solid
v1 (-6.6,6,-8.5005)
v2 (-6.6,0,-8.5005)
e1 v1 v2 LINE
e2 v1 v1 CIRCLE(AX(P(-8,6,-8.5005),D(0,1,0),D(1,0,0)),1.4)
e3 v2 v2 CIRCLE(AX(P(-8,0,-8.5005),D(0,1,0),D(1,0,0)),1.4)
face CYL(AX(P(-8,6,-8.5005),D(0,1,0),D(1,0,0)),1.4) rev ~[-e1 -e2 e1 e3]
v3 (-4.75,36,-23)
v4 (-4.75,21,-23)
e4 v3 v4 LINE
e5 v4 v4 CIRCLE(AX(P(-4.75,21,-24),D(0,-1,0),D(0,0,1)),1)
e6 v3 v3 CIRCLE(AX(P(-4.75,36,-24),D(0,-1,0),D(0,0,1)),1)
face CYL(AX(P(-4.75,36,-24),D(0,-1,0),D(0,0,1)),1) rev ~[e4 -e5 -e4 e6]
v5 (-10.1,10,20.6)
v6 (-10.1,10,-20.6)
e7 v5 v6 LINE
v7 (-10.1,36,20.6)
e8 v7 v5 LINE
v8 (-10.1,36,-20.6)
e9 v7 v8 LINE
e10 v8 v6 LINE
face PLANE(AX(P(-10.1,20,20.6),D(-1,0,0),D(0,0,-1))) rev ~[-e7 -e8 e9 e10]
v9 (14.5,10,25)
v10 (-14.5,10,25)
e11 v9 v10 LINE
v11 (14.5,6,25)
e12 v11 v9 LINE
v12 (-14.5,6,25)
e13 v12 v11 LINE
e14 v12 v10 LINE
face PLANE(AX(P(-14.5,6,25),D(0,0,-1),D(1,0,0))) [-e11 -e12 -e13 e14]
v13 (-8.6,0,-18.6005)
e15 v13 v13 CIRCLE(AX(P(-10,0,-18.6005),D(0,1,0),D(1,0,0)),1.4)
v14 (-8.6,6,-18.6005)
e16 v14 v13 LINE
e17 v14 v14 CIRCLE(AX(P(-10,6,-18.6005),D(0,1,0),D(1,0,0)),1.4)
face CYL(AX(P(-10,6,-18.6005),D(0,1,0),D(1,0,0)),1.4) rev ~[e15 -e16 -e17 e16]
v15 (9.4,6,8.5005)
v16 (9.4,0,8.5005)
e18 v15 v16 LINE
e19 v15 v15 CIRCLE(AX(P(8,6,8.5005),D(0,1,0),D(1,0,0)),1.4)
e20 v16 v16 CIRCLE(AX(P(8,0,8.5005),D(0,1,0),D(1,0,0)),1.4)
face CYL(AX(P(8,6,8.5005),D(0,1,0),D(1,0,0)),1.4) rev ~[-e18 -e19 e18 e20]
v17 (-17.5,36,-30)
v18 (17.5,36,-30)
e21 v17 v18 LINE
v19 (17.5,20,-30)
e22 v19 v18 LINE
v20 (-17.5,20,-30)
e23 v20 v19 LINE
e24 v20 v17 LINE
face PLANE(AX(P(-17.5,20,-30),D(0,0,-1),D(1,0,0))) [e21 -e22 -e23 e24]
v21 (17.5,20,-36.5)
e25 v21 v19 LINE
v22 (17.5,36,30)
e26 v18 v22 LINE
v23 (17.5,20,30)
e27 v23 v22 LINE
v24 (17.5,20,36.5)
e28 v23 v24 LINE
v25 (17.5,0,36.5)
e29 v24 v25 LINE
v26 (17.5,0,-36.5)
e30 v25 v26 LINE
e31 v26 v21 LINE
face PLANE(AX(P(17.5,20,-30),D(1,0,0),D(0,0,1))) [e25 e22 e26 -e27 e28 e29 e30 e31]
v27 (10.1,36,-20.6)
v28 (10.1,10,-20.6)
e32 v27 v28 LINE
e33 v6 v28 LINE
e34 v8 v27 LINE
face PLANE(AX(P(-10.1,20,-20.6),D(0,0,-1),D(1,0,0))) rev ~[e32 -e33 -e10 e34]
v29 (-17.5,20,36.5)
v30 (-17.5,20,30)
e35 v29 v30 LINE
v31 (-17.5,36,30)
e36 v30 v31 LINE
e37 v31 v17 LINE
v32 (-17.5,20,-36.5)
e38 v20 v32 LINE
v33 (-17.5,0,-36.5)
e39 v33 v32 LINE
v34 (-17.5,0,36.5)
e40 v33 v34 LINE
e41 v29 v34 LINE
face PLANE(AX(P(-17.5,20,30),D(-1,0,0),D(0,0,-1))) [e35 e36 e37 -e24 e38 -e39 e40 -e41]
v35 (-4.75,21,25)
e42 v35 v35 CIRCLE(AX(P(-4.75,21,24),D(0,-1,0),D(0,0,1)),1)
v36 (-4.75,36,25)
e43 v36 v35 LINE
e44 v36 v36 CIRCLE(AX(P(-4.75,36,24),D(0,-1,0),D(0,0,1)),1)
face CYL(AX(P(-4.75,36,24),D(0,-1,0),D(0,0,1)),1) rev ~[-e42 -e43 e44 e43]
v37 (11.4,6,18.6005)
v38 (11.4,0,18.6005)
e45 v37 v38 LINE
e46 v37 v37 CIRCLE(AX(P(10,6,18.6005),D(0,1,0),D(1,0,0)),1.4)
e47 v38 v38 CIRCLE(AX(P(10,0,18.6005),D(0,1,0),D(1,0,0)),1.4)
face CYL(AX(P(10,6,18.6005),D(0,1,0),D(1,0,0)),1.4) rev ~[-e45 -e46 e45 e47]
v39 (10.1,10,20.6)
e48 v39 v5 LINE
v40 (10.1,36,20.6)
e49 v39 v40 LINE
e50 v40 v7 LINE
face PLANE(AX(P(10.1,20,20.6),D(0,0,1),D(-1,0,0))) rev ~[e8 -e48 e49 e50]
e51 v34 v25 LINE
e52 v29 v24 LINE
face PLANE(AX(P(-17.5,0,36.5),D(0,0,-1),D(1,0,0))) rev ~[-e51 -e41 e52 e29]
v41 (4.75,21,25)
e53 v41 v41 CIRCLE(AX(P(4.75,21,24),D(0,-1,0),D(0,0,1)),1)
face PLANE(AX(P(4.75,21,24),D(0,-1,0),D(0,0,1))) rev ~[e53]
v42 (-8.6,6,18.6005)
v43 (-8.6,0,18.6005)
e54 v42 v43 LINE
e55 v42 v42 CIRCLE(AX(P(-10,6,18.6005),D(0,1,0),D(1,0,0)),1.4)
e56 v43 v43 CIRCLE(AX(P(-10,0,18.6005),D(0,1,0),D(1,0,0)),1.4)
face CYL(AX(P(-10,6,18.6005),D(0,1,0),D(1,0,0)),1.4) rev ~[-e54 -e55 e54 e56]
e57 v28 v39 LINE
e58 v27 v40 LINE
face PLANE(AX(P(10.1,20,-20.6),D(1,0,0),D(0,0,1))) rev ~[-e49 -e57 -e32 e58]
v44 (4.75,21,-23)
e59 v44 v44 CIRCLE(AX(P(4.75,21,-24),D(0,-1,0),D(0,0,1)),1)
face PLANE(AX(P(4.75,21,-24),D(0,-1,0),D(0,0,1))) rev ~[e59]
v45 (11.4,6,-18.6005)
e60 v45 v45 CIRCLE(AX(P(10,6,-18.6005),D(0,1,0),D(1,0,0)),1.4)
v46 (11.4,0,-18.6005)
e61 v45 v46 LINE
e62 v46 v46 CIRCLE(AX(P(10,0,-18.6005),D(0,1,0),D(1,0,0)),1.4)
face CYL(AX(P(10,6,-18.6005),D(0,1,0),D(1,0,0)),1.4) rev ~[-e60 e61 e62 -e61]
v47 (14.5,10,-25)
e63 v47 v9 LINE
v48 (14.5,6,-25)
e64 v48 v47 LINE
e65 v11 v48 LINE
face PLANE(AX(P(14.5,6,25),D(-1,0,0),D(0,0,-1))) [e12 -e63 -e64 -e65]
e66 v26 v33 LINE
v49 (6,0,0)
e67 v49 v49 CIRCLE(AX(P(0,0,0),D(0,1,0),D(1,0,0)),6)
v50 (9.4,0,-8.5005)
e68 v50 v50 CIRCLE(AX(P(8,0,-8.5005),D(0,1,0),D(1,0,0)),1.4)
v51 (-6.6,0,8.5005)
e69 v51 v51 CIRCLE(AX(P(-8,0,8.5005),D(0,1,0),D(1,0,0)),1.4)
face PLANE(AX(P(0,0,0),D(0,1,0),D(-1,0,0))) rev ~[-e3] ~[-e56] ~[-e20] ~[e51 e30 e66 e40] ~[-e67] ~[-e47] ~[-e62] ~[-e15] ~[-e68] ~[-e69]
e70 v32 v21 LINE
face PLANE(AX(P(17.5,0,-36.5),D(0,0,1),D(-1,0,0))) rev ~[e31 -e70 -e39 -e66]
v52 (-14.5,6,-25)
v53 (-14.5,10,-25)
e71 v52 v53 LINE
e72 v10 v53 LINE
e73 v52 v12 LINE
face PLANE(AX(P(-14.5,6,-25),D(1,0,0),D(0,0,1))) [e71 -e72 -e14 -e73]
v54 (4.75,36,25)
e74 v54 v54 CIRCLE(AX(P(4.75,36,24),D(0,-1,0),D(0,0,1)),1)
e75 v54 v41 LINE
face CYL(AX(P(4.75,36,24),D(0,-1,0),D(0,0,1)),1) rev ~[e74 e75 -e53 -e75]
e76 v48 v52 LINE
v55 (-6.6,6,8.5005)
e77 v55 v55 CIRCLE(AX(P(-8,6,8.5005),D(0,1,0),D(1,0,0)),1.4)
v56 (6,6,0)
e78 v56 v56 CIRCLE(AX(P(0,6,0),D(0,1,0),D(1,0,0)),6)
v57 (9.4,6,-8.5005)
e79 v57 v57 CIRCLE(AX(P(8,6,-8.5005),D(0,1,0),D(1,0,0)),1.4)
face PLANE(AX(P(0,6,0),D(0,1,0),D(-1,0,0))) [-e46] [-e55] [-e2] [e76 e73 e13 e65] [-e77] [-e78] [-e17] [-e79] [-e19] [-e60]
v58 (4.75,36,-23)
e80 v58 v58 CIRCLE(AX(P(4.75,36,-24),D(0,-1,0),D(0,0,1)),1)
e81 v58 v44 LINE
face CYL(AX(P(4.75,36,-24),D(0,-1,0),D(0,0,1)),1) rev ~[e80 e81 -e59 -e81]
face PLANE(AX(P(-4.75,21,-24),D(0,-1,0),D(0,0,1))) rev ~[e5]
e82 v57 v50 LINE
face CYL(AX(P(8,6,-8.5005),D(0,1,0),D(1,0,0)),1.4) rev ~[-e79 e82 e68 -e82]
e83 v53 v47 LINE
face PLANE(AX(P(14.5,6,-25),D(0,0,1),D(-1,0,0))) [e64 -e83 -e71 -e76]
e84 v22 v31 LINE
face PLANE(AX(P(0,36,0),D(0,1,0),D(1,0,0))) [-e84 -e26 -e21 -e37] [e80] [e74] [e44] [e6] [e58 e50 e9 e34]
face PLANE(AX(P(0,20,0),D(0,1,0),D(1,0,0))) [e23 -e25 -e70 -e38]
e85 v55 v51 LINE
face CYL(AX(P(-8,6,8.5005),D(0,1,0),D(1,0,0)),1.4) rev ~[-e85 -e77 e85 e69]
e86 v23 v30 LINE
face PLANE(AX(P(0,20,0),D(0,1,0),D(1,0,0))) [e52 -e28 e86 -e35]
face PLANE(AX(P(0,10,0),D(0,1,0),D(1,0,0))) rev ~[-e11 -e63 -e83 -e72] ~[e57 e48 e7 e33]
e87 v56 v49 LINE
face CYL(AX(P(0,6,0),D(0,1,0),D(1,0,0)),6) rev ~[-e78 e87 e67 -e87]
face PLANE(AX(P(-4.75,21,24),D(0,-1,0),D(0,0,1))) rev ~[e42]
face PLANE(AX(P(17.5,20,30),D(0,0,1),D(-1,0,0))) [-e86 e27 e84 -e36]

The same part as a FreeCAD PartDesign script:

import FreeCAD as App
import Part
import Sketcher


def add_polygon(sketch, points):
    """Adds a closed chain of lines whose ends are joined by coincident constraints."""
    first, n = sketch.GeometryCount, len(points)
    for a, b in zip(points, points[1:] + points[:1]):
        sketch.addGeometry(Part.LineSegment(App.Vector(*a, 0), App.Vector(*b, 0)), False)
    for i in range(n):
        sketch.addConstraint(Sketcher.Constraint("Coincident", first + i, 2, first + (i + 1) % n, 1))

doc = App.newDocument("Part")
params = doc.addObject("Spreadsheet::Sheet", "Params")
for row, (alias, value) in enumerate([
    ("sketch1_width", "35 mm"),
    ("sketch1_height", "73 mm"),
    ("pad1_length", "6 mm"),
    ("sketch2_width", "29 mm"),
    ("sketch2_height", "50 mm"),
    ("sketch2_width2", "35 mm"),
    ("sketch2_height2", "73 mm"),
    ("pad2_length", "14 mm"),
    ("sketch3_diameter", "12 mm"),
    ("sketch3_diameter2", "2.8 mm"),
    ("sketch4_width", "20.2 mm"),
    ("sketch4_height", "41.2 mm"),
    ("sketch4_width2", "29 mm"),
    ("sketch4_height2", "50 mm"),
    ("pad3_length", "16 mm"),
    ("pad3_length2", "10 mm"),
    ("sketch5_width", "35 mm"),
    ("sketch5_height", "60 mm"),
    ("sketch5_width2", "29 mm"),
    ("sketch5_height2", "50 mm"),
    ("pad4_length", "16 mm"),
    ("sketch6_diameter", "2 mm"),
    ("hole_diameter", "2 mm"),
    ("hole_depth", "15 mm"),
], start=1):
    params.set(f"A{row}", alias)
    params.set(f"B{row}", "=" + value)
    params.setAlias(f"B{row}", alias)

body = doc.addObject("PartDesign::Body", "Body")

sketch1 = body.newObject("Sketcher::SketchObject", "Sketch")
sketch1.AttachmentSupport = (doc.getObject("XZ_Plane"), [""])
sketch1.MapMode = "FlatFace"
add_polygon(sketch1, [(17.5, 36.5), (17.5, -36.5), (-17.5, -36.5), (-17.5, 36.5)])
sketch1.addConstraint([
    Sketcher.Constraint("Vertical", 0),
    Sketcher.Constraint("Horizontal", 1),
    Sketcher.Constraint("Vertical", 2),
    Sketcher.Constraint("Horizontal", 3),
    Sketcher.Constraint("Symmetric", 0, 2, 2, 2, -1, 1),
    Sketcher.Constraint("DistanceX", 1, 2, 1, 1, 35.0),
    Sketcher.Constraint("DistanceY", 0, 2, 0, 1, 73.0),
])
sketch1.setExpression("Constraints[9]", "Params.sketch1_width")
sketch1.setExpression("Constraints[10]", "Params.sketch1_height")
pad1 = body.newObject("PartDesign::Pad", "Pad")
pad1.Profile = sketch1
pad1.setExpression("Length", "Params.pad1_length")
pad1.Reversed = True

sketch2 = body.newObject("Sketcher::SketchObject", "Sketch001")
sketch2.AttachmentSupport = (doc.getObject("XZ_Plane"), [""])
sketch2.MapMode = "FlatFace"
sketch2.AttachmentOffset = App.Placement(App.Vector(0, 0, -6), App.Rotation())
add_polygon(sketch2, [(17.5, -36.5), (-17.5, -36.5), (-17.5, 36.5), (17.5, 36.5)])
add_polygon(sketch2, [(14.5, -25), (14.5, 25), (-14.5, 25), (-14.5, -25)])
sketch2.addConstraint([
    Sketcher.Constraint("Horizontal", 0),
    Sketcher.Constraint("Vertical", 1),
    Sketcher.Constraint("Horizontal", 2),
    Sketcher.Constraint("Vertical", 3),
    Sketcher.Constraint("Vertical", 4),
    Sketcher.Constraint("Horizontal", 5),
    Sketcher.Constraint("Vertical", 6),
    Sketcher.Constraint("Horizontal", 7),
    Sketcher.Constraint("Symmetric", 0, 2, 2, 2, -1, 1),
    Sketcher.Constraint("Symmetric", 4, 2, 6, 2, -1, 1),
    Sketcher.Constraint("DistanceX", 5, 2, 5, 1, 29.0),
    Sketcher.Constraint("DistanceY", 4, 1, 4, 2, 50.0),
    Sketcher.Constraint("DistanceX", 0, 2, 0, 1, 35.0),
    Sketcher.Constraint("DistanceY", 1, 1, 1, 2, 73.0),
])
sketch2.setExpression("Constraints[18]", "Params.sketch2_width")
sketch2.setExpression("Constraints[19]", "Params.sketch2_height")
sketch2.setExpression("Constraints[20]", "Params.sketch2_width2")
sketch2.setExpression("Constraints[21]", "Params.sketch2_height2")
pad2 = body.newObject("PartDesign::Pad", "Pad001")
pad2.Profile = sketch2
pad2.setExpression("Length", "Params.pad2_length")
pad2.Reversed = True

sketch3 = body.newObject("Sketcher::SketchObject", "Sketch002")
sketch3.AttachmentSupport = (doc.getObject("XZ_Plane"), [""])
sketch3.MapMode = "FlatFace"
sketch3.AttachmentOffset = App.Placement(App.Vector(0, 0, -6), App.Rotation())
sketch3.addGeometry([
    Part.Circle(App.Vector(0, 0, 0), App.Vector(0, 0, 1), 6),
    Part.Circle(App.Vector(-10, 18.6005, 0), App.Vector(0, 0, 1), 1.4),
    Part.Circle(App.Vector(-8, 8.5005, 0), App.Vector(0, 0, 1), 1.4),
    Part.Circle(App.Vector(-10, -18.6005, 0), App.Vector(0, 0, 1), 1.4),
    Part.Circle(App.Vector(-8, -8.5005, 0), App.Vector(0, 0, 1), 1.4),
    Part.Circle(App.Vector(10, 18.6005, 0), App.Vector(0, 0, 1), 1.4),
    Part.Circle(App.Vector(8, 8.5005, 0), App.Vector(0, 0, 1), 1.4),
    Part.Circle(App.Vector(10, -18.6005, 0), App.Vector(0, 0, 1), 1.4),
    Part.Circle(App.Vector(8, -8.5005, 0), App.Vector(0, 0, 1), 1.4),
], False)
sketch3.addConstraint([
    Sketcher.Constraint("Coincident", 0, 3, -1, 1),
    Sketcher.Constraint("Equal", 1, 2),
    Sketcher.Constraint("Equal", 2, 3),
    Sketcher.Constraint("Equal", 3, 4),
    Sketcher.Constraint("Equal", 4, 5),
    Sketcher.Constraint("Equal", 5, 6),
    Sketcher.Constraint("Equal", 6, 7),
    Sketcher.Constraint("Equal", 7, 8),
    Sketcher.Constraint("Symmetric", 3, 3, 5, 3, -1, 1),
    Sketcher.Constraint("Symmetric", 4, 3, 6, 3, -1, 1),
    Sketcher.Constraint("Symmetric", 1, 3, 7, 3, -1, 1),
    Sketcher.Constraint("Symmetric", 2, 3, 8, 3, -1, 1),
    Sketcher.Constraint("Symmetric", 1, 3, 5, 3, -2),
    Sketcher.Constraint("Symmetric", 2, 3, 6, 3, -2),
    Sketcher.Constraint("Diameter", 0, 12.0),
    Sketcher.Constraint("Diameter", 1, 2.8),
    Sketcher.Constraint("DistanceX", 1, 3, -1, 1, 10.0),
    Sketcher.Constraint("DistanceX", 2, 3, -1, 1, 8.0),
    Sketcher.Constraint("DistanceY", 2, 3, 1, 3, 10.1),
    Sketcher.Constraint("DistanceY", 3, 3, 2, 3, 27.101),
])
sketch3.setExpression("Constraints[14]", "Params.sketch3_diameter")
sketch3.setExpression("Constraints[15]", "Params.sketch3_diameter2")
pocket1 = body.newObject("PartDesign::Pocket", "Pocket")
pocket1.Profile = sketch3
pocket1.Type = "ThroughAll"
pocket1.Reversed = True

sketch4 = body.newObject("Sketcher::SketchObject", "Sketch003")
sketch4.AttachmentSupport = (doc.getObject("XZ_Plane"), [""])
sketch4.MapMode = "FlatFace"
sketch4.AttachmentOffset = App.Placement(App.Vector(0, 0, -20), App.Rotation())
add_polygon(sketch4, [(-14.5, -25), (-14.5, 25), (14.5, 25), (14.5, -25)])
add_polygon(sketch4, [(10.1, -20.6), (10.1, 20.6), (-10.1, 20.6), (-10.1, -20.6)])
sketch4.addConstraint([
    Sketcher.Constraint("Vertical", 0),
    Sketcher.Constraint("Horizontal", 1),
    Sketcher.Constraint("Vertical", 2),
    Sketcher.Constraint("Horizontal", 3),
    Sketcher.Constraint("Vertical", 4),
    Sketcher.Constraint("Horizontal", 5),
    Sketcher.Constraint("Vertical", 6),
    Sketcher.Constraint("Horizontal", 7),
    Sketcher.Constraint("Symmetric", 0, 2, 2, 2, -1, 1),
    Sketcher.Constraint("Symmetric", 4, 2, 6, 2, -1, 1),
    Sketcher.Constraint("DistanceX", 5, 2, 5, 1, 20.2),
    Sketcher.Constraint("DistanceY", 4, 1, 4, 2, 41.2),
    Sketcher.Constraint("DistanceX", 1, 1, 1, 2, 29.0),
    Sketcher.Constraint("DistanceY", 0, 1, 0, 2, 50.0),
])
sketch4.setExpression("Constraints[18]", "Params.sketch4_width")
sketch4.setExpression("Constraints[19]", "Params.sketch4_height")
sketch4.setExpression("Constraints[20]", "Params.sketch4_width2")
sketch4.setExpression("Constraints[21]", "Params.sketch4_height2")
pad3 = body.newObject("PartDesign::Pad", "Pad002")
pad3.Profile = sketch4
pad3.Type = "TwoLengths"
pad3.setExpression("Length", "Params.pad3_length")
pad3.setExpression("Length2", "Params.pad3_length2")
pad3.Reversed = True

sketch5 = body.newObject("Sketcher::SketchObject", "Sketch004")
sketch5.AttachmentSupport = (doc.getObject("XZ_Plane"), [""])
sketch5.MapMode = "FlatFace"
sketch5.AttachmentOffset = App.Placement(App.Vector(0, 0, -20), App.Rotation())
add_polygon(sketch5, [(-17.5, 30), (17.5, 30), (17.5, -30), (-17.5, -30)])
add_polygon(sketch5, [(-14.5, 25), (-14.5, -25), (14.5, -25), (14.5, 25)])
sketch5.addConstraint([
    Sketcher.Constraint("Horizontal", 0),
    Sketcher.Constraint("Vertical", 1),
    Sketcher.Constraint("Horizontal", 2),
    Sketcher.Constraint("Vertical", 3),
    Sketcher.Constraint("Vertical", 4),
    Sketcher.Constraint("Horizontal", 5),
    Sketcher.Constraint("Vertical", 6),
    Sketcher.Constraint("Horizontal", 7),
    Sketcher.Constraint("Symmetric", 0, 2, 2, 2, -1, 1),
    Sketcher.Constraint("Symmetric", 4, 2, 6, 2, -1, 1),
    Sketcher.Constraint("DistanceX", 0, 1, 0, 2, 35.0),
    Sketcher.Constraint("DistanceY", 1, 2, 1, 1, 60.0),
    Sketcher.Constraint("DistanceX", 5, 1, 5, 2, 29.0),
    Sketcher.Constraint("DistanceY", 4, 2, 4, 1, 50.0),
])
sketch5.setExpression("Constraints[18]", "Params.sketch5_width")
sketch5.setExpression("Constraints[19]", "Params.sketch5_height")
sketch5.setExpression("Constraints[20]", "Params.sketch5_width2")
sketch5.setExpression("Constraints[21]", "Params.sketch5_height2")
pad4 = body.newObject("PartDesign::Pad", "Pad003")
pad4.Profile = sketch5
pad4.setExpression("Length", "Params.pad4_length")
pad4.Reversed = True

sketch6 = body.newObject("Sketcher::SketchObject", "Sketch005")
sketch6.AttachmentSupport = (doc.getObject("XZ_Plane"), [""])
sketch6.MapMode = "FlatFace"
sketch6.AttachmentOffset = App.Placement(App.Vector(0, 0, -36), App.Rotation())
sketch6.addGeometry([
    Part.Circle(App.Vector(-4.75, -24, 0), App.Vector(0, 0, 1), 1),
    Part.Circle(App.Vector(4.75, -24, 0), App.Vector(0, 0, 1), 1),
    Part.Circle(App.Vector(-4.75, 24, 0), App.Vector(0, 0, 1), 1),
    Part.Circle(App.Vector(4.75, 24, 0), App.Vector(0, 0, 1), 1),
], False)
sketch6.addConstraint([
    Sketcher.Constraint("Equal", 0, 1),
    Sketcher.Constraint("Equal", 1, 2),
    Sketcher.Constraint("Equal", 2, 3),
    Sketcher.Constraint("Symmetric", 1, 3, 2, 3, -1, 1),
    Sketcher.Constraint("Symmetric", 0, 3, 3, 3, -1, 1),
    Sketcher.Constraint("Symmetric", 0, 3, 1, 3, -2),
    Sketcher.Constraint("Diameter", 0, 2.0),
    Sketcher.Constraint("DistanceY", 0, 3, -1, 1, 24.0),
    Sketcher.Constraint("DistanceX", 0, 3, 1, 3, 9.5),
])
sketch6.setExpression("Constraints[6]", "Params.sketch6_diameter")
doc.recompute()
hole = body.newObject("PartDesign::Hole", "Hole")
hole.Profile = sketch6
hole.ThreadType = "None"
hole.setExpression("Diameter", "Params.hole_diameter")
hole.DepthType = "Dimension"
hole.setExpression("Depth", "Params.hole_depth")
hole.DrillPoint = "Flat"
hole.Reversed = True

doc.recompute()
